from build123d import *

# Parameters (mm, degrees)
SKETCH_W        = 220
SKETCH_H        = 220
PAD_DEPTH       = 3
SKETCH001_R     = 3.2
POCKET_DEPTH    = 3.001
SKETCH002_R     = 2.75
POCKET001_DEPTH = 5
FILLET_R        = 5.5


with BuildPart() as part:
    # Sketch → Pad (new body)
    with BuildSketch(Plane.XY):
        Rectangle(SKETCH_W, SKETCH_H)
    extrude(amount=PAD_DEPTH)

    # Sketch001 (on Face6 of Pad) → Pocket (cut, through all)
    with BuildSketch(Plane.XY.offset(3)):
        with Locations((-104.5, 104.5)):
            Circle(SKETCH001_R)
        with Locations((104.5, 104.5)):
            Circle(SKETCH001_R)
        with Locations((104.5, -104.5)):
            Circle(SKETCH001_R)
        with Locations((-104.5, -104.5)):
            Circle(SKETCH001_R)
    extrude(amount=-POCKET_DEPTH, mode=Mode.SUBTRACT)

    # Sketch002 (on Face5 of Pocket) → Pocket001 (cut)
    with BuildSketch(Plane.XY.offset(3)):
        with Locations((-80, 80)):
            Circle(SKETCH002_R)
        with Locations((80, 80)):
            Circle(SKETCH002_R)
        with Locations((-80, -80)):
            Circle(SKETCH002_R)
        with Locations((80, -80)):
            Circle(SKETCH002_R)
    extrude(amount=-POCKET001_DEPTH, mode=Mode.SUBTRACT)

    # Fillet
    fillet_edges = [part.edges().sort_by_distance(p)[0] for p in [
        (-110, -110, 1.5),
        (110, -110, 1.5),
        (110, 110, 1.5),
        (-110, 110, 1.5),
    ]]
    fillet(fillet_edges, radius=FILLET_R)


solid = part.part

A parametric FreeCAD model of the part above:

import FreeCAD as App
import Part
import Sketcher
from FreeCAD import Vector
Q = App.Units.Quantity


def edges_at(feature, points):
    """Names of the edges that pass closest to the given points."""
    edges = feature.Shape.Edges
    near = lambda p: min(range(len(edges)), key=lambda i: edges[i].distToShape(Part.Vertex(*p))[0])
    return sorted({f"Edge{near(p) + 1}" for p in points})

doc = App.newDocument("Part")
params = doc.addObject("Spreadsheet::Sheet", "Params")
for row, (alias, value) in enumerate([
    ("sketch1_width", "220 mm"),
    ("pad1_length", "3 mm"),
    ("sketch2_diameter", "6.4 mm"),
    ("sketch3_diameter", "5.5 mm"),
    ("pocket2_length", "5 mm"),
    ("fillet_radius", "5.5 mm"),
], start=1):
    params.set(f"A{row}", alias)
    params.set(f"B{row}", "=" + value)
    params.setAlias(f"B{row}", alias)

body = doc.addObject("PartDesign::Body", "Body")

# Sketch on XY plane
sketch1 = body.newObject("Sketcher::SketchObject", "Sketch")
sketch1.AttachmentSupport = (doc.getObject("XY_Plane"), [""])
sketch1.MapMode = "FlatFace"
sketch1.addGeometry(Part.LineSegment(Vector(-110, 110, 0), Vector(-110, -110, 0)), False)
sketch1.addGeometry(Part.LineSegment(Vector(-110, -110, 0), Vector(110, -110, 0)), False)
sketch1.addGeometry(Part.LineSegment(Vector(110, -110, 0), Vector(110, 110, 0)), False)
sketch1.addGeometry(Part.LineSegment(Vector(110, 110, 0), Vector(-110, 110, 0)), False)
sketch1.addConstraint(Sketcher.Constraint("Coincident", 0, 2, 1, 1))
sketch1.addConstraint(Sketcher.Constraint("Coincident", 1, 2, 2, 1))
sketch1.addConstraint(Sketcher.Constraint("Coincident", 2, 2, 3, 1))
sketch1.addConstraint(Sketcher.Constraint("Coincident", 3, 2, 0, 1))
sketch1.addConstraint(Sketcher.Constraint("Vertical", 0))
sketch1.addConstraint(Sketcher.Constraint("Horizontal", 1))
sketch1.addConstraint(Sketcher.Constraint("Vertical", 2))
sketch1.addConstraint(Sketcher.Constraint("Horizontal", 3))
sketch1.addConstraint(Sketcher.Constraint("Symmetric", 0, 2, 2, 2, -1, 1))
sketch1.addConstraint(Sketcher.Constraint("Equal", 3, 0))
sketch1.addConstraint(Sketcher.Constraint("DistanceX", 1, 1, 1, 2, Q("220 mm")))
sketch1.setExpression("Constraints[10]", "Params.sketch1_width")
pad1 = body.newObject("PartDesign::Pad", "Pad")
pad1.Profile = sketch1
pad1.setExpression("Length", "Params.pad1_length")

# Sketch on XY plane
sketch2 = body.newObject("Sketcher::SketchObject", "Sketch001")
sketch2.AttachmentSupport = (doc.getObject("XY_Plane"), [""])
sketch2.MapMode = "FlatFace"
sketch2.AttachmentOffset = App.Placement(Vector(0, 0, 3), App.Rotation())
sketch2.addGeometry(Part.Circle(Vector(-104.5, 104.5, 0), Vector(0, 0, 1), 3.2), False)
sketch2.addGeometry(Part.Circle(Vector(104.5, 104.5, 0), Vector(0, 0, 1), 3.2), False)
sketch2.addGeometry(Part.Circle(Vector(104.5, -104.5, 0), Vector(0, 0, 1), 3.2), False)
sketch2.addGeometry(Part.Circle(Vector(-104.5, -104.5, 0), Vector(0, 0, 1), 3.2), False)
sketch2.addConstraint(Sketcher.Constraint("Equal", 0, 1))
sketch2.addConstraint(Sketcher.Constraint("Equal", 1, 2))
sketch2.addConstraint(Sketcher.Constraint("Equal", 2, 3))
sketch2.addConstraint(Sketcher.Constraint("Symmetric", 0, 3, 2, 3, -1, 1))
sketch2.addConstraint(Sketcher.Constraint("Symmetric", 1, 3, 3, 3, -1, 1))
sketch2.addConstraint(Sketcher.Constraint("Symmetric", 0, 3, 1, 3, -2))
sketch2.addConstraint(Sketcher.Constraint("Diameter", 0, Q("6.4 mm")))
sketch2.addConstraint(Sketcher.Constraint("DistanceX", 0, 3, 1, 3, Q("209 mm")))
sketch2.addConstraint(Sketcher.Constraint("DistanceY", 2, 3, 1, 3, Q("209 mm")))
sketch2.setExpression("Constraints[6]", "Params.sketch2_diameter")
pocket1 = body.newObject("PartDesign::Pocket", "Pocket")
pocket1.Profile = sketch2
pocket1.Type = "ThroughAll"

# Sketch on XY plane
sketch3 = body.newObject("Sketcher::SketchObject", "Sketch002")
sketch3.AttachmentSupport = (doc.getObject("XY_Plane"), [""])
sketch3.MapMode = "FlatFace"
sketch3.AttachmentOffset = App.Placement(Vector(0, 0, 3), App.Rotation())
sketch3.addGeometry(Part.Circle(Vector(-80, 80, 0), Vector(0, 0, 1), 2.75), False)
sketch3.addGeometry(Part.Circle(Vector(80, 80, 0), Vector(0, 0, 1), 2.75), False)
sketch3.addGeometry(Part.Circle(Vector(-80, -80, 0), Vector(0, 0, 1), 2.75), False)
sketch3.addGeometry(Part.Circle(Vector(80, -80, 0), Vector(0, 0, 1), 2.75), False)
sketch3.addConstraint(Sketcher.Constraint("Equal", 0, 1))
sketch3.addConstraint(Sketcher.Constraint("Equal", 1, 2))
sketch3.addConstraint(Sketcher.Constraint("Equal", 2, 3))
sketch3.addConstraint(Sketcher.Constraint("Symmetric", 1, 3, 2, 3, -1, 1))
sketch3.addConstraint(Sketcher.Constraint("Symmetric", 0, 3, 3, 3, -1, 1))
sketch3.addConstraint(Sketcher.Constraint("Symmetric", 0, 3, 1, 3, -2))
sketch3.addConstraint(Sketcher.Constraint("Diameter", 0, Q("5.5 mm")))
sketch3.addConstraint(Sketcher.Constraint("DistanceX", 0, 3, -1, 1, Q("80 mm")))
sketch3.addConstraint(Sketcher.Constraint("DistanceY", -1, 1, 0, 3, Q("80 mm")))
sketch3.setExpression("Constraints[6]", "Params.sketch3_diameter")
pocket2 = body.newObject("PartDesign::Pocket", "Pocket001")
pocket2.Profile = sketch3
pocket2.setExpression("Length", "Params.pocket2_length")
doc.recompute()

fillet = body.newObject("PartDesign::Fillet", "Fillet")
fillet.Base = (pocket2, edges_at(pocket2, [
    (-110, -110, 1.5),
    (110, -110, 1.5),
    (110, 110, 1.5),
    (-110, 110, 1.5),
]))
fillet.setExpression("Radius", "Params.fillet_radius")

doc.recompute()
